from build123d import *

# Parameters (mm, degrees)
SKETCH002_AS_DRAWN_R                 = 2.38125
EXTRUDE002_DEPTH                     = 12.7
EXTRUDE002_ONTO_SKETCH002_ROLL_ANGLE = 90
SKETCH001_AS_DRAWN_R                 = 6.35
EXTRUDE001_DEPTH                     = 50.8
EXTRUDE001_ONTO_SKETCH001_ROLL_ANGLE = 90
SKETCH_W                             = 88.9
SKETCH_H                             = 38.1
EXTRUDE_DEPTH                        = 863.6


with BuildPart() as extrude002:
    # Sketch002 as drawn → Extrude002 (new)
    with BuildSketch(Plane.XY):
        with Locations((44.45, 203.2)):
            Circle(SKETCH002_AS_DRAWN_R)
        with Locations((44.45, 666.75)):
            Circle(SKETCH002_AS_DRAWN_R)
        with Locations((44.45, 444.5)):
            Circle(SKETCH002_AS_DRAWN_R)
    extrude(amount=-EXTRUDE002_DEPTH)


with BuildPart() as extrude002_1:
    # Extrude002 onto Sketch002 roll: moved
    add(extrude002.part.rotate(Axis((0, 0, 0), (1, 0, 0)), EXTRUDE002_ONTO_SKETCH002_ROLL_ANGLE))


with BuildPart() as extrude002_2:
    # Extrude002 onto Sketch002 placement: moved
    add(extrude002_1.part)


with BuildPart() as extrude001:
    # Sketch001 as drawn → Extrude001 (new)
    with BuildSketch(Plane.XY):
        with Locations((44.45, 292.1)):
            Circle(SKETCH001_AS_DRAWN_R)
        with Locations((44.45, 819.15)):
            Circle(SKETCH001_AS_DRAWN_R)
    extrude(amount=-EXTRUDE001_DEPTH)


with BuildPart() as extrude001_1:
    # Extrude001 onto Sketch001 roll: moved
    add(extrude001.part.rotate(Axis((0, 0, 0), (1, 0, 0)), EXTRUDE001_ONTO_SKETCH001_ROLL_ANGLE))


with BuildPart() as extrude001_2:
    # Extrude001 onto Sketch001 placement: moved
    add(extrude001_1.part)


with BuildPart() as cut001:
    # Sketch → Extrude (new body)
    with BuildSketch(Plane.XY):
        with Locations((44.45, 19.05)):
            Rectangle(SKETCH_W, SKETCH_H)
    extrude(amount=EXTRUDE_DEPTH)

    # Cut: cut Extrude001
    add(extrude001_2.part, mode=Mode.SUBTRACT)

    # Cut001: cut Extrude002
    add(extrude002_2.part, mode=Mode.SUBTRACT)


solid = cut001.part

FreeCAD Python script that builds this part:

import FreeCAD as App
import Part
import Sketcher

V = App.Vector
Q = App.Units.Quantity

doc = App.newDocument("Part")
body = doc.addObject("PartDesign::Body", "Body")
body.AllowCompound = True

# Sketch on XY plane
sketch1 = body.newObject("Sketcher::SketchObject", "Sketch")
sketch1.AttachmentSupport = (doc.getObject("XY_Plane"), [""])
sketch1.MapMode = "FlatFace"
sketch1.addGeometry(Part.Circle(V(44.5, 203.2, 0), V(0, 0, 1), 2.4), False)
sketch1.addGeometry(Part.Circle(V(44.5, 666.8, 0), V(0, 0, 1), 2.4), False)
sketch1.addGeometry(Part.Circle(V(44.5, 444.5, 0), V(0, 0, 1), 2.4), False)
sketch1.addConstraint(Sketcher.Constraint("Equal", 0, 1))
sketch1.addConstraint(Sketcher.Constraint("Equal", 1, 2))
sketch1.addConstraint(Sketcher.Constraint("Vertical", 0, 3, 1, 3))
sketch1.addConstraint(Sketcher.Constraint("Vertical", 1, 3, 2, 3))
sketch1.addConstraint(Sketcher.Constraint("Diameter", 0, Q("0.1875 in")))
sketch1.addConstraint(Sketcher.Constraint("DistanceY", -1, 1, 0, 3, Q("8 in")))
sketch1.addConstraint(Sketcher.Constraint("DistanceY", -1, 1, 2, 3, Q("17.5 in")))
sketch1.addConstraint(Sketcher.Constraint("DistanceX", -1, 1, 0, 3, Q("1.75 in")))
sketch1.addConstraint(Sketcher.Constraint("DistanceY", -1, 1, 1, 3, Q("26.25 in")))
pad1 = body.newObject("PartDesign::Pad", "Pad")
pad1.Profile = sketch1
pad1.Length = Q("0.5 in")
pad1.Reversed = True
body2 = doc.addObject("PartDesign::Body", "Body001")
body2.AllowCompound = True
doc.recompute()

body.Placement = App.Placement(V(0, 0, 0), App.Rotation(V(1, 0, 0), 90))
boolean = body2.newObject("PartDesign::Boolean", "Boolean")
boolean.Type = "Fuse"
boolean.addObjects([body])
body3 = doc.addObject("PartDesign::Body", "Body002")
body3.AllowCompound = True

# Sketch on XY plane
sketch2 = body3.newObject("Sketcher::SketchObject", "Sketch001")
sketch2.AttachmentSupport = (doc.getObject("XY_Plane002"), [""])
sketch2.MapMode = "FlatFace"
sketch2.addGeometry(Part.Circle(V(44, 292, 0), V(0, 0, 1), 6), False)
sketch2.addGeometry(Part.Circle(V(44, 819, 0), V(0, 0, 1), 6), False)
sketch2.addConstraint(Sketcher.Constraint("Equal", 0, 1))
sketch2.addConstraint(Sketcher.Constraint("Vertical", 0, 3, 1, 3))
sketch2.addConstraint(Sketcher.Constraint("Diameter", 0, Q("0.5 in")))
sketch2.addConstraint(Sketcher.Constraint("DistanceY", -1, 1, 0, 3, Q("11.5 in")))
sketch2.addConstraint(Sketcher.Constraint("DistanceX", -1, 1, 0, 3, Q("1.75 in")))
sketch2.addConstraint(Sketcher.Constraint("DistanceY", -1, 1, 1, 3, Q("32.25 in")))
pad2 = body3.newObject("PartDesign::Pad", "Pad001")
pad2.Profile = sketch2
pad2.Length = Q("2 in")
pad2.Reversed = True
body4 = doc.addObject("PartDesign::Body", "Body003")
body4.AllowCompound = True
doc.recompute()

body3.Placement = App.Placement(V(0, 0, 0), App.Rotation(V(1, 0, 0), 90))
boolean2 = body4.newObject("PartDesign::Boolean", "Boolean001")
boolean2.Type = "Fuse"
boolean2.addObjects([body3])
body5 = doc.addObject("PartDesign::Body", "Body004")

# Sketch on XY plane
sketch3 = body5.newObject("Sketcher::SketchObject", "Sketch002")
sketch3.AttachmentSupport = (doc.getObject("XY_Plane004"), [""])
sketch3.MapMode = "FlatFace"
sketch3.addGeometry(Part.LineSegment(V(0, 38, 0), V(0, 0, 0)), False)
sketch3.addGeometry(Part.LineSegment(V(0, 0, 0), V(89, 0, 0)), False)
sketch3.addGeometry(Part.LineSegment(V(89, 0, 0), V(89, 38, 0)), False)
sketch3.addGeometry(Part.LineSegment(V(89, 38, 0), V(0, 38, 0)), False)
sketch3.addConstraint(Sketcher.Constraint("Coincident", 0, 2, 1, 1))
sketch3.addConstraint(Sketcher.Constraint("Coincident", 1, 2, 2, 1))
sketch3.addConstraint(Sketcher.Constraint("Coincident", 2, 2, 3, 1))
sketch3.addConstraint(Sketcher.Constraint("Coincident", 3, 2, 0, 1))
sketch3.addConstraint(Sketcher.Constraint("Vertical", 0))
sketch3.addConstraint(Sketcher.Constraint("Horizontal", 1))
sketch3.addConstraint(Sketcher.Constraint("Vertical", 2))
sketch3.addConstraint(Sketcher.Constraint("Horizontal", 3))
sketch3.addConstraint(Sketcher.Constraint("Coincident", 0, 2, -1, 1))
sketch3.addConstraint(Sketcher.Constraint("DistanceX", 1, 1, 1, 2, Q("3.5 in")))
sketch3.addConstraint(Sketcher.Constraint("DistanceY", 0, 2, 0, 1, Q("1.5 in")))
pad3 = body5.newObject("PartDesign::Pad", "Pad002")
pad3.Profile = sketch3
pad3.Length = Q("34 in")
doc.recompute()

boolean3 = body5.newObject("PartDesign::Boolean", "Boolean002")
boolean3.Type = "Cut"
boolean3.addObjects([body4])
doc.recompute()

boolean4 = body5.newObject("PartDesign::Boolean", "Boolean003")
boolean4.Type = "Cut"
boolean4.addObjects([body2])

doc.recompute()
